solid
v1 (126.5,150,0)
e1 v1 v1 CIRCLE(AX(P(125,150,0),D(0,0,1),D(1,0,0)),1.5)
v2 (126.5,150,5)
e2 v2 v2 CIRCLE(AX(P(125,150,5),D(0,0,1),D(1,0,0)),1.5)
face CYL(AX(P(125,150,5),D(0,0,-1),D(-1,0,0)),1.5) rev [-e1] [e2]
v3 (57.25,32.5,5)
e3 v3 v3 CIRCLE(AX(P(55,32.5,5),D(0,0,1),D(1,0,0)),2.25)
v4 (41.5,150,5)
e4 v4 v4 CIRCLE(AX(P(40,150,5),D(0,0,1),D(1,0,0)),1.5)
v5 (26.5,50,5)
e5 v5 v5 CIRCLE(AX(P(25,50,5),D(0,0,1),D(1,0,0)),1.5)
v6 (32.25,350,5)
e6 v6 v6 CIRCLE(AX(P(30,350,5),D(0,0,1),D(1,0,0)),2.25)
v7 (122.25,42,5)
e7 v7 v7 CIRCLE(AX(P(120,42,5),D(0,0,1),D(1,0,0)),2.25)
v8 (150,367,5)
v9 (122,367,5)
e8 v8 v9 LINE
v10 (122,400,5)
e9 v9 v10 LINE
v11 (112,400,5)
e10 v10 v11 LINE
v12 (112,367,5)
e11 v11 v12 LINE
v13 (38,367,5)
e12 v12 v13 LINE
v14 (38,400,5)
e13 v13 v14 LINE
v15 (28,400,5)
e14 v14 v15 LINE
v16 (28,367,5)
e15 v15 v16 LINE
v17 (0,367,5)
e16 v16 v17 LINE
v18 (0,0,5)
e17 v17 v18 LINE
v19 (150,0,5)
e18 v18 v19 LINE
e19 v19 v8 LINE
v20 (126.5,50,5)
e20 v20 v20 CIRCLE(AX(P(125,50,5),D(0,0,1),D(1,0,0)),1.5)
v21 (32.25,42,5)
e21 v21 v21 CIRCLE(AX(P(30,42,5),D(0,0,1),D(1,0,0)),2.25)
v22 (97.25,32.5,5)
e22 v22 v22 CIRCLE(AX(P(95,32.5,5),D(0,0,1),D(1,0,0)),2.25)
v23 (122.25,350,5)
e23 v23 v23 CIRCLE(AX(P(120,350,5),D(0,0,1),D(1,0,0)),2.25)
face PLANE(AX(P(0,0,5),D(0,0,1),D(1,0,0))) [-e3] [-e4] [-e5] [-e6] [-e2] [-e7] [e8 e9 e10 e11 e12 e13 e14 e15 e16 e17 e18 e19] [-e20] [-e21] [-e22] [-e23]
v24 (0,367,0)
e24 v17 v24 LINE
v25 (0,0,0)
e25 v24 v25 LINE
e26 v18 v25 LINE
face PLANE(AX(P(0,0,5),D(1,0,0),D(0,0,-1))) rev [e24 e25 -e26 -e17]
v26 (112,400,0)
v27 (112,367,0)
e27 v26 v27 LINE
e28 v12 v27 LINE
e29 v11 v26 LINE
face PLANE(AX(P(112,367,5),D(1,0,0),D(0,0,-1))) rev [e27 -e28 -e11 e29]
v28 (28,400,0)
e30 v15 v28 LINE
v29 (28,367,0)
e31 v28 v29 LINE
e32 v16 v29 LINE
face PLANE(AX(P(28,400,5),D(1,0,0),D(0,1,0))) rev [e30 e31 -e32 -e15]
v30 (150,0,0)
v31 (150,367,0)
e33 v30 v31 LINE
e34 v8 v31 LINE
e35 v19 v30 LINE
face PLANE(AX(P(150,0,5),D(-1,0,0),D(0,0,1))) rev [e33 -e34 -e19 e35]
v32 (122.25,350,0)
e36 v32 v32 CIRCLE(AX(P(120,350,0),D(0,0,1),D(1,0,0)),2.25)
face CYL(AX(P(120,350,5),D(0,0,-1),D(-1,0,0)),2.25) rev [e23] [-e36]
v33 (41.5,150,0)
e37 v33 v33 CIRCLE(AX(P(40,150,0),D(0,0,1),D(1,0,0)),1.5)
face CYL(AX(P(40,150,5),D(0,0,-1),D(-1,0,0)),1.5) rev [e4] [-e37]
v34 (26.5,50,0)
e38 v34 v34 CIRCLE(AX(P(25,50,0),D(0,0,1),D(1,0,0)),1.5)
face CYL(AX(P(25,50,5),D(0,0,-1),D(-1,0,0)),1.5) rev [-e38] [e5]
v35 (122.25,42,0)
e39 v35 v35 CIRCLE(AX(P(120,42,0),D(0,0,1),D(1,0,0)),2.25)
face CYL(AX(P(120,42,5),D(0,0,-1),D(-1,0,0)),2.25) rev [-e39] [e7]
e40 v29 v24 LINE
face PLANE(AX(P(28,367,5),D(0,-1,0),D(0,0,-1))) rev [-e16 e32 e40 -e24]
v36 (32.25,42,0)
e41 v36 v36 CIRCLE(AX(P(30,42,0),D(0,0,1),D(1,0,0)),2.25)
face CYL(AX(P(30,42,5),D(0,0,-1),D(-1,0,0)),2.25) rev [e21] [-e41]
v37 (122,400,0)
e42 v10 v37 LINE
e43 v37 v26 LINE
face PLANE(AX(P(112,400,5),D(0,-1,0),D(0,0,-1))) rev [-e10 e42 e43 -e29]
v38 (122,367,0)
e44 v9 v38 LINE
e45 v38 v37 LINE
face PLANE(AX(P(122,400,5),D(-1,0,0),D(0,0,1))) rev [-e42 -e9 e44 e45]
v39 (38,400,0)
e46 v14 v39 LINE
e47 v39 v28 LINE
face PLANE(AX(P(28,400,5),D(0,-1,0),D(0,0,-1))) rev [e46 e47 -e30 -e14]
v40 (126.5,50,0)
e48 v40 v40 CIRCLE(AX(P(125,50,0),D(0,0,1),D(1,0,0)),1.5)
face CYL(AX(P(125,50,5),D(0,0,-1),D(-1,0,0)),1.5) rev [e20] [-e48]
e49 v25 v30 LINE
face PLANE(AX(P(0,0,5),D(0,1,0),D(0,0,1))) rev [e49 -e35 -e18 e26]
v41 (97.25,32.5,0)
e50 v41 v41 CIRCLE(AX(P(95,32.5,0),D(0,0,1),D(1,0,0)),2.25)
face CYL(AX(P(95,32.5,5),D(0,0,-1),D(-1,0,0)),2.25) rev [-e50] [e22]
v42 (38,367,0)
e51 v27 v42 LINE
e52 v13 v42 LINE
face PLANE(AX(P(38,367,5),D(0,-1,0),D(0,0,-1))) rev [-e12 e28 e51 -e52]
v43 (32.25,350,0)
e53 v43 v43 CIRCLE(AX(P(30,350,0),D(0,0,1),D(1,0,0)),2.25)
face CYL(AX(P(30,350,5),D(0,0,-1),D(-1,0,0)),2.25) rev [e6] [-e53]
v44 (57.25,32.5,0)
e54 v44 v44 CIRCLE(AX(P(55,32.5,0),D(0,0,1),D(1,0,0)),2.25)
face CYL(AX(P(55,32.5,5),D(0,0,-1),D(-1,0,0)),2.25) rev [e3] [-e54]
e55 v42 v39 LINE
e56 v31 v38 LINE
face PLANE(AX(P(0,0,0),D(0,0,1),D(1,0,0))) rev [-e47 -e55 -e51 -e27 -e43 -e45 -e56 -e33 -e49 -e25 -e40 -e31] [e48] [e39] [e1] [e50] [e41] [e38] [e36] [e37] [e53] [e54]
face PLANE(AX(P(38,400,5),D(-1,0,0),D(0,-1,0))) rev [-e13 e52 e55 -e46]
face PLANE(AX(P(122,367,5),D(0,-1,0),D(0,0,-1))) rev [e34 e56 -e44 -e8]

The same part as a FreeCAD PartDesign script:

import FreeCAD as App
import Part
import Sketcher
from FreeCAD import Vector


def add_polygon(sketch, points):
    """Adds a closed chain of lines whose ends are joined by coincident constraints."""
    first, n = sketch.GeometryCount, len(points)
    for a, b in zip(points, points[1:] + points[:1]):
        sketch.addGeometry(Part.LineSegment(App.Vector(*a, 0), App.Vector(*b, 0)), False)
    for i in range(n):
        sketch.addConstraint(Sketcher.Constraint("Coincident", first + i, 2, first + (i + 1) % n, 1))

doc = App.newDocument("Part")
params = doc.addObject("Spreadsheet::Sheet", "Params")
for row, (alias, value) in enumerate([
    ("sketch1_diameter", "3 mm"),
    ("sketch1_diameter2", "4.5 mm"),
    ("sketch1_width", "150 mm"),
    ("sketch1_width2", "28 mm"),
    ("sketch1_width3", "10 mm"),
    ("pad1_length", "5 mm"),
], start=1):
    params.set(f"A{row}", alias)
    params.set(f"B{row}", "=" + value)
    params.setAlias(f"B{row}", alias)

body = doc.addObject("PartDesign::Body", "Body")

sketch1 = body.newObject("Sketcher::SketchObject", "Sketch")
sketch1.AttachmentSupport = (doc.getObject("XY_Plane"), [""])
sketch1.MapMode = "FlatFace"
add_polygon(sketch1, [(0, 0), (150, 0), (150, 367), (122, 367), (122, 400), (112, 400), (112, 367), (38, 367), (38, 400), (28, 400), (28, 367), (0, 367)])
sketch1.addGeometry(Part.Circle(Vector(25, 50, 0), Vector(0, 0, 1), 1.5), False)
sketch1.addGeometry(Part.Circle(Vector(30, 42, 0), Vector(0, 0, 1), 2.2), False)
sketch1.addGeometry(Part.Circle(Vector(55, 32.5, 0), Vector(0, 0, 1), 2.2), False)
sketch1.addGeometry(Part.Circle(Vector(40, 150, 0), Vector(0, 0, 1), 1.5), False)
sketch1.addGeometry(Part.Circle(Vector(95, 32.5, 0), Vector(0, 0, 1), 2.2), False)
sketch1.addGeometry(Part.Circle(Vector(120, 42, 0), Vector(0, 0, 1), 2.2), False)
sketch1.addGeometry(Part.Circle(Vector(125, 50, 0), Vector(0, 0, 1), 1.5), False)
sketch1.addGeometry(Part.Circle(Vector(125, 150, 0), Vector(0, 0, 1), 1.5), False)
sketch1.addGeometry(Part.Circle(Vector(30, 350, 0), Vector(0, 0, 1), 2.2), False)
sketch1.addGeometry(Part.Circle(Vector(120, 350, 0), Vector(0, 0, 1), 2.2), False)
sketch1.addConstraint(Sketcher.Constraint("Horizontal", 0))
sketch1.addConstraint(Sketcher.Constraint("Vertical", 1))
sketch1.addConstraint(Sketcher.Constraint("Horizontal", 2))
sketch1.addConstraint(Sketcher.Constraint("Vertical", 3))
sketch1.addConstraint(Sketcher.Constraint("Horizontal", 4))
sketch1.addConstraint(Sketcher.Constraint("Vertical", 5))
sketch1.addConstraint(Sketcher.Constraint("Horizontal", 6))
sketch1.addConstraint(Sketcher.Constraint("Vertical", 7))
sketch1.addConstraint(Sketcher.Constraint("Horizontal", 8))
sketch1.addConstraint(Sketcher.Constraint("Vertical", 9))
sketch1.addConstraint(Sketcher.Constraint("Horizontal", 10))
sketch1.addConstraint(Sketcher.Constraint("Vertical", 11))
sketch1.addConstraint(Sketcher.Constraint("Coincident", 11, 2, -1, 1))
sketch1.addConstraint(Sketcher.Constraint("Equal", 13, 14))
sketch1.addConstraint(Sketcher.Constraint("Equal", 12, 15))
sketch1.addConstraint(Sketcher.Constraint("Equal", 14, 16))
sketch1.addConstraint(Sketcher.Constraint("Equal", 16, 17))
sketch1.addConstraint(Sketcher.Constraint("Equal", 15, 18))
sketch1.addConstraint(Sketcher.Constraint("Equal", 18, 19))
sketch1.addConstraint(Sketcher.Constraint("Equal", 17, 20))
sketch1.addConstraint(Sketcher.Constraint("Equal", 20, 21))
sketch1.addConstraint(Sketcher.Constraint("Horizontal", 14, 3, 16, 3))
sketch1.addConstraint(Sketcher.Constraint("Horizontal", 13, 3, 17, 3))
sketch1.addConstraint(Sketcher.Constraint("Horizontal", 12, 3, 18, 3))
sketch1.addConstraint(Sketcher.Constraint("Horizontal", 15, 3, 19, 3))
sketch1.addConstraint(Sketcher.Constraint("Horizontal", 20, 3, 21, 3))
sketch1.addConstraint(Sketcher.Constraint("Horizontal", 2, 2, 5, 2))
sketch1.addConstraint(Sketcher.Constraint("Horizontal", 4, 2, 7, 2))
sketch1.addConstraint(Sketcher.Constraint("Horizontal", 6, 2, 9, 2))
sketch1.addConstraint(Sketcher.Constraint("Vertical", 18, 3, 19, 3))
sketch1.addConstraint(Sketcher.Constraint("Vertical", 13, 3, 20, 3))
sketch1.addConstraint(Sketcher.Constraint("Vertical", 17, 3, 21, 3))
sketch1.addConstraint(Sketcher.Constraint("Equal", 4, 8))
sketch1.addConstraint(Sketcher.Constraint("Equal", 2, 10))
sketch1.addConstraint(Sketcher.Constraint("Diameter", 12, 3.0))
sketch1.addConstraint(Sketcher.Constraint("Diameter", 13, 4.5))
sketch1.addConstraint(Sketcher.Constraint("DistanceX", 0, 1, 0, 2, 150.0))
sketch1.addConstraint(Sketcher.Constraint("DistanceX", 2, 2, 2, 1, 28.0))
sketch1.addConstraint(Sketcher.Constraint("DistanceX", 4, 2, 4, 1, 10.0))
sketch1.addConstraint(Sketcher.Constraint("DistanceY", 1, 1, 1, 2, 367.0))
sketch1.addConstraint(Sketcher.Constraint("DistanceY", 3, 1, 3, 2, 33.0))
sketch1.addConstraint(Sketcher.Constraint("DistanceX", -1, 1, 12, 3, 25.0))
sketch1.addConstraint(Sketcher.Constraint("DistanceY", -1, 1, 12, 3, 50.0))
sketch1.addConstraint(Sketcher.Constraint("DistanceX", -1, 1, 13, 3, 30.0))
sketch1.addConstraint(Sketcher.Constraint("DistanceY", -1, 1, 13, 3, 42.0))
sketch1.addConstraint(Sketcher.Constraint("DistanceX", -1, 1, 14, 3, 55.0))
sketch1.addConstraint(Sketcher.Constraint("DistanceX", -1, 1, 15, 3, 40.0))
sketch1.addConstraint(Sketcher.Constraint("DistanceY", -1, 1, 15, 3, 150.0))
sketch1.addConstraint(Sketcher.Constraint("DistanceX", -1, 1, 16, 3, 95.0))
sketch1.addConstraint(Sketcher.Constraint("DistanceX", -1, 1, 17, 3, 120.0))
sketch1.addConstraint(Sketcher.Constraint("DistanceX", -1, 1, 18, 3, 125.0))
sketch1.addConstraint(Sketcher.Constraint("DistanceY", -1, 1, 20, 3, 350.0))
sketch1.addConstraint(Sketcher.Constraint("DistanceY", -1, 1, 14, 3, 32.5))
sketch1.setExpression("Constraints[46]", "Params.sketch1_diameter")
sketch1.setExpression("Constraints[47]", "Params.sketch1_diameter2")
sketch1.setExpression("Constraints[48]", "Params.sketch1_width")
sketch1.setExpression("Constraints[49]", "Params.sketch1_width2")
sketch1.setExpression("Constraints[50]", "Params.sketch1_width3")
pad1 = body.newObject("PartDesign::Pad", "Pad")
pad1.Profile = sketch1
pad1.setExpression("Length", "Params.pad1_length")

doc.recompute()
